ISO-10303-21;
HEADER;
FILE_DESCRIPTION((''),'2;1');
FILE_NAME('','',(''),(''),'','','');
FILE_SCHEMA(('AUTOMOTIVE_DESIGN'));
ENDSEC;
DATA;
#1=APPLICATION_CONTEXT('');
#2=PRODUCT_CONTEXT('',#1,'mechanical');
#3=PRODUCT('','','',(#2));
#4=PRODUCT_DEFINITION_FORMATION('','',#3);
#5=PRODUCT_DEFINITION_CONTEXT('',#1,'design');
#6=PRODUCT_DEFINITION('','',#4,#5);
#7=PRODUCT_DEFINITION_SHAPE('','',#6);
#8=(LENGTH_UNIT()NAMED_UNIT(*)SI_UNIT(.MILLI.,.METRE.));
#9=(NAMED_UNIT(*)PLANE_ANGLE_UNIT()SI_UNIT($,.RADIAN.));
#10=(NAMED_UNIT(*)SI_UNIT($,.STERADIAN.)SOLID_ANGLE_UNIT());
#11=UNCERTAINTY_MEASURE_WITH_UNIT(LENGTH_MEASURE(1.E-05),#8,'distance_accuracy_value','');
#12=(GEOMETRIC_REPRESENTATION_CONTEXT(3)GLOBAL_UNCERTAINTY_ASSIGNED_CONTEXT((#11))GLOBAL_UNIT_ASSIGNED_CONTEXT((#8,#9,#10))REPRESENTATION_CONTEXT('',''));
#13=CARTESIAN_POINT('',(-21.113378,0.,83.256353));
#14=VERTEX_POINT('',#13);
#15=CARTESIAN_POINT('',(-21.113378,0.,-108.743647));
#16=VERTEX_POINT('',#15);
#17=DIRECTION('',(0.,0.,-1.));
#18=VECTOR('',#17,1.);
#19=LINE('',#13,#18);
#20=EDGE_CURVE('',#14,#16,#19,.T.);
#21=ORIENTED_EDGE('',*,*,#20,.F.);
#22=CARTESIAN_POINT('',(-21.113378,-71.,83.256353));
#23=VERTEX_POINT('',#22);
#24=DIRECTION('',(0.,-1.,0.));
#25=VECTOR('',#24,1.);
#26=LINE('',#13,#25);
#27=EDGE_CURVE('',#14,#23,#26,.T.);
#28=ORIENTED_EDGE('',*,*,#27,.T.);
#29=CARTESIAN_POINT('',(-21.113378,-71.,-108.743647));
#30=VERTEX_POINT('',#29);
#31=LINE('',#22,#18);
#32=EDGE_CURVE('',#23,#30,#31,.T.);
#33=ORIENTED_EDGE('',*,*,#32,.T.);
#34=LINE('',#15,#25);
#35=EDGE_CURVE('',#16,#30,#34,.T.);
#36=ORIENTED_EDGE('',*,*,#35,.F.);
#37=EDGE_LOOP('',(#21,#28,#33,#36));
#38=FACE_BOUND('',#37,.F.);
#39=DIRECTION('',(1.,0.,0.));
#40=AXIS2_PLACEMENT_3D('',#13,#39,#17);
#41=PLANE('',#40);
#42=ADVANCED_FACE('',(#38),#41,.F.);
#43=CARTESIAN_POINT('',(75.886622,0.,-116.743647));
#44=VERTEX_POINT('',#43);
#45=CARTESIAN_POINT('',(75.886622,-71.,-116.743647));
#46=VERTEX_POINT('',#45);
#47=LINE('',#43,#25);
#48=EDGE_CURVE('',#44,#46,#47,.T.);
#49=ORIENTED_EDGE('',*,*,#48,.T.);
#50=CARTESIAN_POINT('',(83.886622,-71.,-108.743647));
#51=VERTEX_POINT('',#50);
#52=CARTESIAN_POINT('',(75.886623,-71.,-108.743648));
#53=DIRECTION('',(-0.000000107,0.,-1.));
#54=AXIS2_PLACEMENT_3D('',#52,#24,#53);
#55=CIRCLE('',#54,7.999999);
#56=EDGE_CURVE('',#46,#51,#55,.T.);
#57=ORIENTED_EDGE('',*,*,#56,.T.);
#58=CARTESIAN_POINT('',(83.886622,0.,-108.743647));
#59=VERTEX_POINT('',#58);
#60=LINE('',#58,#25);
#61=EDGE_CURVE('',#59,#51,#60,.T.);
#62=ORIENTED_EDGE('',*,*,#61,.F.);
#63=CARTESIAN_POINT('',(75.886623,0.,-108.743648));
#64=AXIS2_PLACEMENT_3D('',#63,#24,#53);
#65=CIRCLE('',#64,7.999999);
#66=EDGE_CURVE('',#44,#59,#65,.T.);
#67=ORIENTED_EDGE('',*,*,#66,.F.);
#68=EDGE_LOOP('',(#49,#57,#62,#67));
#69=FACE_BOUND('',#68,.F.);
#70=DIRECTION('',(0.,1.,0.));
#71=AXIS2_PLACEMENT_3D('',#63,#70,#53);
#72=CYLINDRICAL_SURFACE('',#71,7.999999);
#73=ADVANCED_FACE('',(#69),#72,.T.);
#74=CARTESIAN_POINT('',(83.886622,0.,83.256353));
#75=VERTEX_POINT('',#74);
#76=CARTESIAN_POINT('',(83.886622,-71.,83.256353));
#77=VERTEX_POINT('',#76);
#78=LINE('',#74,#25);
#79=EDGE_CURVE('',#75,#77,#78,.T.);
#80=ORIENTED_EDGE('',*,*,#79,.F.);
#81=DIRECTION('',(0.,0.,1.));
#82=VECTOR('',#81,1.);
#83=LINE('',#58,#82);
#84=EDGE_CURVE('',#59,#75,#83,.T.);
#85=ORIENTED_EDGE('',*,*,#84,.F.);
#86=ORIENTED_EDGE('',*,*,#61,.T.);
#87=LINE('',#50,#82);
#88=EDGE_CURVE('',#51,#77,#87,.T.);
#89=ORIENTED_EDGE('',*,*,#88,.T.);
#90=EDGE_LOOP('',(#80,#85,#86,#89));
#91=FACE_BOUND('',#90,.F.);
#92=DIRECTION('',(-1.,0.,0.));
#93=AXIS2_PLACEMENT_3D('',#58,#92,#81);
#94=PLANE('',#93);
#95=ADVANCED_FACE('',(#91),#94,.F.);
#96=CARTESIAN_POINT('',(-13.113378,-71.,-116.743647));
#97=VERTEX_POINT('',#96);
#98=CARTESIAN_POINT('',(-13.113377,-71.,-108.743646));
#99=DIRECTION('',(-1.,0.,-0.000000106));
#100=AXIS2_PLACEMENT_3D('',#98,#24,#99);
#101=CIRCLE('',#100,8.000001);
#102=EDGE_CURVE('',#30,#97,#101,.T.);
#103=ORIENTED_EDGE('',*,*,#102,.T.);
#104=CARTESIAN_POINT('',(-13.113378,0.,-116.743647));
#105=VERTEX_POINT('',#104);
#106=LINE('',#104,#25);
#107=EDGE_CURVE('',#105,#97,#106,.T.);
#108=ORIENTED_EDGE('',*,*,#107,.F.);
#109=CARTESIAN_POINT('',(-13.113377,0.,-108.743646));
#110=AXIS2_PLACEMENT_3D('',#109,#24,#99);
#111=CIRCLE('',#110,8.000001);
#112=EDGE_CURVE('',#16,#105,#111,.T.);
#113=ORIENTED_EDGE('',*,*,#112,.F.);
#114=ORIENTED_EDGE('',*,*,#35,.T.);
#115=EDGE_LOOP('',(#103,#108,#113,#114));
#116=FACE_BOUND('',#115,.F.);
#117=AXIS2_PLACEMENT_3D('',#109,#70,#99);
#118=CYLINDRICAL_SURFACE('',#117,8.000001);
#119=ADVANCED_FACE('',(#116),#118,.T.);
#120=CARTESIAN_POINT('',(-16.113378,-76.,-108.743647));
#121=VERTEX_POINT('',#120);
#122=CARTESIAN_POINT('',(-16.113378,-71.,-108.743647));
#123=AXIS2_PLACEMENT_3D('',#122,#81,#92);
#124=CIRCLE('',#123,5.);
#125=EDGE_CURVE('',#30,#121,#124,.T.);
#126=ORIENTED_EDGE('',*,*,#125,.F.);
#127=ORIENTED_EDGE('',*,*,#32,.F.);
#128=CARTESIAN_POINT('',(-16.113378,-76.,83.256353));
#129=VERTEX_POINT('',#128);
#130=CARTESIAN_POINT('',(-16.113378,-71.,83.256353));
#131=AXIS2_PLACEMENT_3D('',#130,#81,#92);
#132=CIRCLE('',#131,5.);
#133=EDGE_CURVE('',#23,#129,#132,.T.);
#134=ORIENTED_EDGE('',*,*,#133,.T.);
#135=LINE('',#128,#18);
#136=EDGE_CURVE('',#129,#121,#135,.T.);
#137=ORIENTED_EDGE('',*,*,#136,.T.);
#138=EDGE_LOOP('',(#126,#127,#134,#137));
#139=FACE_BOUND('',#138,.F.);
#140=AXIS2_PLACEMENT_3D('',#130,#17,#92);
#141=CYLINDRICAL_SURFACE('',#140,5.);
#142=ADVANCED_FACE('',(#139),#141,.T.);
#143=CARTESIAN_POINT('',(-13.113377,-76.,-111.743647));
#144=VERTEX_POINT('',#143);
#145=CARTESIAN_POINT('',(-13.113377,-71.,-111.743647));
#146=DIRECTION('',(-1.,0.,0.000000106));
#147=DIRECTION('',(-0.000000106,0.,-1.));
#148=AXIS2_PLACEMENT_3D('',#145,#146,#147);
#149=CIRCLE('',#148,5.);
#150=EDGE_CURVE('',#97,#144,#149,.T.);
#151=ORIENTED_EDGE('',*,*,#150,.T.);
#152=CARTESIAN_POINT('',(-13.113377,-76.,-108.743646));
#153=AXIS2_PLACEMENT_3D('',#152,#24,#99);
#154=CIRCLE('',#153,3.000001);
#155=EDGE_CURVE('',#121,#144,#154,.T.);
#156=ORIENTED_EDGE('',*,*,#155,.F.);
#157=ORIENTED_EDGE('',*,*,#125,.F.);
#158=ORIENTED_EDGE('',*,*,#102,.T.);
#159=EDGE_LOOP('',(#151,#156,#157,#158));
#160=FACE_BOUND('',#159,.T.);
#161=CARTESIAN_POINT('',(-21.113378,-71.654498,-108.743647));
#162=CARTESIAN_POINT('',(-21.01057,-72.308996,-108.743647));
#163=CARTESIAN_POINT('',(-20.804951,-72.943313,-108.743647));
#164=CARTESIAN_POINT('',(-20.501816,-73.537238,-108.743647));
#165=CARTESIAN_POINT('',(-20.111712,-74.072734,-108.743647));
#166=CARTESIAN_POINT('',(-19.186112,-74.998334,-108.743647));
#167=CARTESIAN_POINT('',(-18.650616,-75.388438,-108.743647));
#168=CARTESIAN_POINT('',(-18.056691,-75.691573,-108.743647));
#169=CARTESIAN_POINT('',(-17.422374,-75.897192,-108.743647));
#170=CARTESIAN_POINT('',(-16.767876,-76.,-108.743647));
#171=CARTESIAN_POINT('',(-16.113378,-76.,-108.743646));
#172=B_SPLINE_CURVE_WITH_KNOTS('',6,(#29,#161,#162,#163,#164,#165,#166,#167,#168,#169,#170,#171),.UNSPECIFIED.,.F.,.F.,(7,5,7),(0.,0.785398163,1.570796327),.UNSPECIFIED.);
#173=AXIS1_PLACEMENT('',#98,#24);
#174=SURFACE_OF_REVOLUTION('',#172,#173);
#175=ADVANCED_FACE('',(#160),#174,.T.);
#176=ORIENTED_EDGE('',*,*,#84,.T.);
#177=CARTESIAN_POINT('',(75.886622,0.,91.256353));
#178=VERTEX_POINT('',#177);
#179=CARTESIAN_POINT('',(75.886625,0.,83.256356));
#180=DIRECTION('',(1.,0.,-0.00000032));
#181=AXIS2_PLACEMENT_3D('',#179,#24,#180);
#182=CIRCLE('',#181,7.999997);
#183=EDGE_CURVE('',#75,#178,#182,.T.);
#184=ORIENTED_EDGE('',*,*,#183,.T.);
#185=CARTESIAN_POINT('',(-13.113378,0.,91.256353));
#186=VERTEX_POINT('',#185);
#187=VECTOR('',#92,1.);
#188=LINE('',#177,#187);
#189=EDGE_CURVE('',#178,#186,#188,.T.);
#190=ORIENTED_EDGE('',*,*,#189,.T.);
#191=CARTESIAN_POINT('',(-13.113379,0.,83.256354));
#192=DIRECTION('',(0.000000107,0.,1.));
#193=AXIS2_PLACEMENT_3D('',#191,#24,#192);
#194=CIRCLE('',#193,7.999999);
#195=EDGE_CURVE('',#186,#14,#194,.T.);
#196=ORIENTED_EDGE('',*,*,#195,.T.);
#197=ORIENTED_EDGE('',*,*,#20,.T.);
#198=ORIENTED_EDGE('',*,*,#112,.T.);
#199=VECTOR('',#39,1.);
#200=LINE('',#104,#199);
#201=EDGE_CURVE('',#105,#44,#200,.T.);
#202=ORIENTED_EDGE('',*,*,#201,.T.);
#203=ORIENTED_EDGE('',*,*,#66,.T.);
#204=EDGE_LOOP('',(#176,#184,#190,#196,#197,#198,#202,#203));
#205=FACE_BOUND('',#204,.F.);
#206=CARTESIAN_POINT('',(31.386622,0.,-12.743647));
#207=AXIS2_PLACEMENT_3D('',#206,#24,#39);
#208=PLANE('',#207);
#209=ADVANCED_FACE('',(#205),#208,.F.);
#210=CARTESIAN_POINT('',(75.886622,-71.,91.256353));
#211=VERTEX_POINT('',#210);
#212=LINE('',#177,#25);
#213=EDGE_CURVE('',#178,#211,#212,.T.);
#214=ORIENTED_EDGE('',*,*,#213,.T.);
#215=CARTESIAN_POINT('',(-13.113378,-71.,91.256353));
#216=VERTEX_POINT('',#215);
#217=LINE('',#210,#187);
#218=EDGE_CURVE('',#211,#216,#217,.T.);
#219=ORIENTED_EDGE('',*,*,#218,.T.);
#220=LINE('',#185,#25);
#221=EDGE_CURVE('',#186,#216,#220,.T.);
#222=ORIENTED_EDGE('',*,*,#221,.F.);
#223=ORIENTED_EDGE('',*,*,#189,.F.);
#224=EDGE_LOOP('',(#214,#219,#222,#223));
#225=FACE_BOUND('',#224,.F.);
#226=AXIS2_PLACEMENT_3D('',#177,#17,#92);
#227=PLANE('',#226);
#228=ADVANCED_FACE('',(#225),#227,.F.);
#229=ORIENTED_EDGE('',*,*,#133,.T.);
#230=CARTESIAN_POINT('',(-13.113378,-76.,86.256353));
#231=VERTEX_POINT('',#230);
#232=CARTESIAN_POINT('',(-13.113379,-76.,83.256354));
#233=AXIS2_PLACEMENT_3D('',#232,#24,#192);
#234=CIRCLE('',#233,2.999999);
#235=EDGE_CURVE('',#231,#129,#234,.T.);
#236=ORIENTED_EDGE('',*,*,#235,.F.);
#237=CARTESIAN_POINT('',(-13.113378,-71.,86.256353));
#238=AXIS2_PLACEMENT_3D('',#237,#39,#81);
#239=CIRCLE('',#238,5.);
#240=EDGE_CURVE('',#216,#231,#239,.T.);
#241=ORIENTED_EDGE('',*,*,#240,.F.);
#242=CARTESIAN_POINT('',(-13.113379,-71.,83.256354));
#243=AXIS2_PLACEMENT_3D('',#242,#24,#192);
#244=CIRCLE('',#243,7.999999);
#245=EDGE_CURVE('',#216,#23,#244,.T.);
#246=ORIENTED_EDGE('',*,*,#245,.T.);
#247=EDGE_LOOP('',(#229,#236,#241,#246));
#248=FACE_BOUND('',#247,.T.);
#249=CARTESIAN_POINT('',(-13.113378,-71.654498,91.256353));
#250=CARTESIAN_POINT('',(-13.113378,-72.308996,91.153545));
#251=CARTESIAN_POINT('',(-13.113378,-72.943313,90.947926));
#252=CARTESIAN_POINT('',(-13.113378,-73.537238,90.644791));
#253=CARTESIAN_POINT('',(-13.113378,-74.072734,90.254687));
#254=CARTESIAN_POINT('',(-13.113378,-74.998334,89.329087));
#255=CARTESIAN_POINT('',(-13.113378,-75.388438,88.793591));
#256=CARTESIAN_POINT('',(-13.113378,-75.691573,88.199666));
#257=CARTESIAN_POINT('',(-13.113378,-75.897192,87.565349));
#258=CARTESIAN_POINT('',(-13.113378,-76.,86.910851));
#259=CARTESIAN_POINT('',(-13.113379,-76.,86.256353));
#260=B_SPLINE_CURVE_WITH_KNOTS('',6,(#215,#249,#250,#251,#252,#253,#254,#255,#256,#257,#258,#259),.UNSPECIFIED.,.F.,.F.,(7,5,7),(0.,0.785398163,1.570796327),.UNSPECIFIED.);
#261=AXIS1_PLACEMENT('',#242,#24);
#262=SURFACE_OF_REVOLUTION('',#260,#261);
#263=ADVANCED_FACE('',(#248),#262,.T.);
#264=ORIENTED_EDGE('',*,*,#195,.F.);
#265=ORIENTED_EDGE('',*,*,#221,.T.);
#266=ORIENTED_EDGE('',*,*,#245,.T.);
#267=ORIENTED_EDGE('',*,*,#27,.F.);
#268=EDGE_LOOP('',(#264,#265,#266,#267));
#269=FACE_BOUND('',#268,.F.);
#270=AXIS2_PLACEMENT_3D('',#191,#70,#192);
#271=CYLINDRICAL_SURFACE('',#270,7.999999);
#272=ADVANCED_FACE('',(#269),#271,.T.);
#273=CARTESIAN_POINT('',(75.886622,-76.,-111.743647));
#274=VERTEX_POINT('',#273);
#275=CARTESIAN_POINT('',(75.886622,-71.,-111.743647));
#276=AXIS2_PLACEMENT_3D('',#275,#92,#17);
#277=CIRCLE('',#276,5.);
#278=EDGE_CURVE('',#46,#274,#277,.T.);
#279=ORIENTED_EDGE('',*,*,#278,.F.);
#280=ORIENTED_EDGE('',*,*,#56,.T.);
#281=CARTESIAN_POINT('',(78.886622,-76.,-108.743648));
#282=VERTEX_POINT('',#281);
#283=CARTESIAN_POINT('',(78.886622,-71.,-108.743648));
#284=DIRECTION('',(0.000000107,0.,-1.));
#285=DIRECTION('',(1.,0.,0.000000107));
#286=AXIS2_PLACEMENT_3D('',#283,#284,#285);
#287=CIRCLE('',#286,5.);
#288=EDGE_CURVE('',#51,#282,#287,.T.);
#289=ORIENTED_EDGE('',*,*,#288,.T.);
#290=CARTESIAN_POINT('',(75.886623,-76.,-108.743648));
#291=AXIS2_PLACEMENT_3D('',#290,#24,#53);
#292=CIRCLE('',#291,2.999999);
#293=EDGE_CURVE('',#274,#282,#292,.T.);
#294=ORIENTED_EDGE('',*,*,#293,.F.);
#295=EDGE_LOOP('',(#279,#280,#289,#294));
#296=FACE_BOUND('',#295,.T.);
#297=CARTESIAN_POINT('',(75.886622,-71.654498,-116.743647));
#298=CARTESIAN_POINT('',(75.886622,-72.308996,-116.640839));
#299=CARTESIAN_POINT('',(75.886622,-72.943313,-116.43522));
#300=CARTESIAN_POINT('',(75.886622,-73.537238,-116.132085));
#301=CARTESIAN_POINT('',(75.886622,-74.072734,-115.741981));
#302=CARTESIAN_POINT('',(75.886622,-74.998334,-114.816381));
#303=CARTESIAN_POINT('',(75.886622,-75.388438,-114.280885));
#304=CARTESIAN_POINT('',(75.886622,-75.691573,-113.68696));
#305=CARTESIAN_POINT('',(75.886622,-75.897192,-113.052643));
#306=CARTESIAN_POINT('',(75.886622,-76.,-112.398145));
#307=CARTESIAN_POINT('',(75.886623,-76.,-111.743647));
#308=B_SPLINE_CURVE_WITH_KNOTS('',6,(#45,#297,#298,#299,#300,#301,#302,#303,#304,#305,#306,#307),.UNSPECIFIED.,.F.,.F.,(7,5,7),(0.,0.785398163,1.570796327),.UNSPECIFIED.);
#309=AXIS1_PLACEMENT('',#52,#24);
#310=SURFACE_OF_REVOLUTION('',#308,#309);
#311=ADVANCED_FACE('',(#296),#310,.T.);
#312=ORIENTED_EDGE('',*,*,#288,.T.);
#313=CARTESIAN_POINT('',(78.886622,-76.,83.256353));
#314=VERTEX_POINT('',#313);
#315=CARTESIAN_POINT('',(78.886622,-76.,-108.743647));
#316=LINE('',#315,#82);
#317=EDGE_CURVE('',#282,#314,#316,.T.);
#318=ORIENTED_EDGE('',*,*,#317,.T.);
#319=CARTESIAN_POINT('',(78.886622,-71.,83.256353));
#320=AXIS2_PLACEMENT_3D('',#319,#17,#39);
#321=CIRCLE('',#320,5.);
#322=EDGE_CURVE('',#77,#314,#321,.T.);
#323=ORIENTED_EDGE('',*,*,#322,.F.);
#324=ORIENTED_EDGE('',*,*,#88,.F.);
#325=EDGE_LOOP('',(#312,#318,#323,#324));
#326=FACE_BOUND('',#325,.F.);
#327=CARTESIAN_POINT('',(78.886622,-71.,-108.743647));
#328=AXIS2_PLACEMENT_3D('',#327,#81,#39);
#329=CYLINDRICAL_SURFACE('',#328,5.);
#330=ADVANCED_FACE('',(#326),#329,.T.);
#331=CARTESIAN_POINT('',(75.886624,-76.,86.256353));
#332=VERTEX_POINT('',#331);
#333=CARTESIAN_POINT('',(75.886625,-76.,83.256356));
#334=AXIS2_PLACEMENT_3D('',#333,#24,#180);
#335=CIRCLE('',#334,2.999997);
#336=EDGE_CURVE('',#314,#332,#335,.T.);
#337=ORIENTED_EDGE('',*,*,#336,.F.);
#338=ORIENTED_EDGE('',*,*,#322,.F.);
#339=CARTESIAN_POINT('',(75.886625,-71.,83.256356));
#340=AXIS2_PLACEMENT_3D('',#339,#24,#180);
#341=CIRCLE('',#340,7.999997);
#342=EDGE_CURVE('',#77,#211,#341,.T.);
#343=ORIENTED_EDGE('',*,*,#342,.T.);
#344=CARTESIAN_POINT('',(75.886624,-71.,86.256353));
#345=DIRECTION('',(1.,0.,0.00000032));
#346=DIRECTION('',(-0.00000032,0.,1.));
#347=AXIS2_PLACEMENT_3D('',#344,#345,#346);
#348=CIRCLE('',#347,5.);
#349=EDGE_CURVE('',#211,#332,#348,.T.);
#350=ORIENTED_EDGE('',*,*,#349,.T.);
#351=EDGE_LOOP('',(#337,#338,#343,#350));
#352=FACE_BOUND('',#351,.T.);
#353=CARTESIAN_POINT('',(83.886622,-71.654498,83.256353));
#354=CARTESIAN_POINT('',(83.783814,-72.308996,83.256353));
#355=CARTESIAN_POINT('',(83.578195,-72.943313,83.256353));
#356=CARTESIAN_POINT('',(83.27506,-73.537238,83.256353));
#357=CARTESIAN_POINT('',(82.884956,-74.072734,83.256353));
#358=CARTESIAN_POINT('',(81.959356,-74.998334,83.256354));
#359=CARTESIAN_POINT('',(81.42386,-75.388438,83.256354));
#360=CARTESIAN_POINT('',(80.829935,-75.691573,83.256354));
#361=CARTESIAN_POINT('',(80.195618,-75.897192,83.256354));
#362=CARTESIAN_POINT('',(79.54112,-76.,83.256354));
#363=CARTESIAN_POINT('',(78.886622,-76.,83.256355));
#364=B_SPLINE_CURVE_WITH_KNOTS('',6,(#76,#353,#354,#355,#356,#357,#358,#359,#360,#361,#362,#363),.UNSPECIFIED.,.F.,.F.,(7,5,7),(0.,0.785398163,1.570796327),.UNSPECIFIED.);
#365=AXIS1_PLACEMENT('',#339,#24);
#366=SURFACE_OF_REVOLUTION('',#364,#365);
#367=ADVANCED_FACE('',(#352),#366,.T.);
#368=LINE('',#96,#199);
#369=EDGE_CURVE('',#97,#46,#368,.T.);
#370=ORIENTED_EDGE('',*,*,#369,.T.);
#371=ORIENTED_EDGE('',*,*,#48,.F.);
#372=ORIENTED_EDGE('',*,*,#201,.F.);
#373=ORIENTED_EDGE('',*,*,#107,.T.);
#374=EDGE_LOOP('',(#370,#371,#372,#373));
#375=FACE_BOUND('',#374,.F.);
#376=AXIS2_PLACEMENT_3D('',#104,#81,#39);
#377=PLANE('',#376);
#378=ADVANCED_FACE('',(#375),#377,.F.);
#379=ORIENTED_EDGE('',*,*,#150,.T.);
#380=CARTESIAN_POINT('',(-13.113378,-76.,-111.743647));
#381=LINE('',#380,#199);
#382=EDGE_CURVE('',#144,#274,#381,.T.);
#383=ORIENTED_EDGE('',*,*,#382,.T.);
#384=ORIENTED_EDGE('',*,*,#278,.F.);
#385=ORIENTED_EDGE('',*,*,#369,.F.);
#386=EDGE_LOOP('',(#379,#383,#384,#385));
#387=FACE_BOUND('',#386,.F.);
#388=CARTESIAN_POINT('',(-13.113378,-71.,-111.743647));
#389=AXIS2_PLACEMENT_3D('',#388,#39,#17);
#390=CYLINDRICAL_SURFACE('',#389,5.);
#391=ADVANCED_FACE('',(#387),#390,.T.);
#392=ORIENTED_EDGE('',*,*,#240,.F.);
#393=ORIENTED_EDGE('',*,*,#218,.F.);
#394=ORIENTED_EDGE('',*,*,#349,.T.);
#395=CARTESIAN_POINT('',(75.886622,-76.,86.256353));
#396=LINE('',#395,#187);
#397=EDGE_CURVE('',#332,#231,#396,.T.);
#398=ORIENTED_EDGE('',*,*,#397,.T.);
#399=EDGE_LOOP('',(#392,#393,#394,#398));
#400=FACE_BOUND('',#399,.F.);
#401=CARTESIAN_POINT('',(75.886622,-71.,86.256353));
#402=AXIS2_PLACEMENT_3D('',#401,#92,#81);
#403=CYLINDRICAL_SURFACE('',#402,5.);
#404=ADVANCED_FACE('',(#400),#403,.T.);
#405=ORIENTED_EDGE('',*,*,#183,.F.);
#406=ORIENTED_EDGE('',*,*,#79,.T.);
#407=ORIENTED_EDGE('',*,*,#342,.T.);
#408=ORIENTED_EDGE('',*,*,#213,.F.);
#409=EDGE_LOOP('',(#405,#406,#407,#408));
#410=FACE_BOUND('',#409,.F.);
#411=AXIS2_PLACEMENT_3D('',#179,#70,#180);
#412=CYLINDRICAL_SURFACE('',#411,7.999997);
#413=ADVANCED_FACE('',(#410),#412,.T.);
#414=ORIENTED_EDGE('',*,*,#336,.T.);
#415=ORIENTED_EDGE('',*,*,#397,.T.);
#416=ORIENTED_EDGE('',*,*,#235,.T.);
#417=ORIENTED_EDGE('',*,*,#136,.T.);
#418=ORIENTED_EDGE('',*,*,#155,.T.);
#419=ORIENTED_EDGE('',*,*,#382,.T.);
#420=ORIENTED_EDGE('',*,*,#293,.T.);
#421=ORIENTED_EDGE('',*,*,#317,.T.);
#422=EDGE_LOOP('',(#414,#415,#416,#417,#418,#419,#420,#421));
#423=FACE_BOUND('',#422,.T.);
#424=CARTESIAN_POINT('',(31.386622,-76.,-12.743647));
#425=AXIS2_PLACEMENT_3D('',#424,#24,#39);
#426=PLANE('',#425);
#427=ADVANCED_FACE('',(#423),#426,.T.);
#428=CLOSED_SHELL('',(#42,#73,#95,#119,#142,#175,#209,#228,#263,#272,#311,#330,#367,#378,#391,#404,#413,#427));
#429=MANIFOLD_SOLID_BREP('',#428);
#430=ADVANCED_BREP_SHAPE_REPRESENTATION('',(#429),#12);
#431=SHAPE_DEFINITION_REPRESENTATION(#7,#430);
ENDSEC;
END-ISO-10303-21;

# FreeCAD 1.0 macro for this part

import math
import FreeCAD as App
import Part
import Sketcher

V = App.Vector


def edges_at(feature, points):
    """Names of the edges that pass closest to the given points."""
    edges = feature.Shape.Edges
    near = lambda p: min(range(len(edges)), key=lambda i: edges[i].distToShape(Part.Vertex(*p))[0])
    return sorted({f"Edge{near(p) + 1}" for p in points})

doc = App.newDocument("Part")
body = doc.addObject("PartDesign::Body", "Body")

# Sketch on XZ plane
sketch1 = body.newObject("Sketcher::SketchObject", "Sketch")
sketch1.AttachmentSupport = (doc.getObject("XZ_Plane"), [""])
sketch1.MapMode = "FlatFace"
sketch1.addGeometry([
    Part.LineSegment(V(75.886622, 91.256353, 0), V(-13.113378, 91.256353, 0)),  # 0
    Part.ArcOfCircle(Part.Circle(V(-13.113379, 83.256354, 0), V(0, 0, 1), 7.999999), math.radians(89.999994), math.radians(180.000006)),  # 1
    Part.LineSegment(V(-21.113378, 83.256353, 0), V(-21.113378, -108.743647, 0)),  # 2
    Part.ArcOfCircle(Part.Circle(V(-13.113377, -108.743646, 0), V(0, 0, 1), 8.000001), math.radians(-179.999994), math.radians(-90.000006)),  # 3
    Part.LineSegment(V(-13.113378, -116.743647, 0), V(75.886622, -116.743647, 0)),  # 4
    Part.ArcOfCircle(Part.Circle(V(75.886623, -108.743648, 0), V(0, 0, 1), 7.999999), math.radians(-90.000006), math.radians(0.000006)),  # 5
    Part.LineSegment(V(83.886622, -108.743647, 0), V(83.886622, 83.256353, 0)),  # 6
    Part.ArcOfCircle(Part.Circle(V(75.886625, 83.256356, 0), V(0, 0, 1), 7.999997), math.radians(-0.000018), math.radians(90.000018)),  # 7
], False)
sketch1.addConstraint([
    Sketcher.Constraint("Tangent", 0, 2, 1, 1),
    Sketcher.Constraint("Tangent", 1, 2, 2, 1),
    Sketcher.Constraint("Tangent", 2, 2, 3, 1),
    Sketcher.Constraint("Tangent", 3, 2, 4, 1),
    Sketcher.Constraint("Tangent", 4, 2, 5, 1),
    Sketcher.Constraint("Tangent", 5, 2, 6, 1),
    Sketcher.Constraint("Tangent", 6, 2, 7, 1),
    Sketcher.Constraint("Tangent", 7, 2, 0, 1),
    Sketcher.Constraint("Horizontal", 0),
    Sketcher.Constraint("Vertical", 2),
    Sketcher.Constraint("Horizontal", 4),
    Sketcher.Constraint("Vertical", 6),
    Sketcher.Constraint("Equal", 1, 3),
    Sketcher.Constraint("Equal", 3, 5),
    Sketcher.Constraint("Equal", 5, 7),
    Sketcher.Constraint("Radius", 1, 7.999999),
    Sketcher.Constraint("DistanceX", 0, 2, 0, 1, 89.0),
    Sketcher.Constraint("DistanceY", 2, 2, 2, 1, 192.0),
    Sketcher.Constraint("DistanceX", 1, 3, -1, 1, 13.113379),
    Sketcher.Constraint("DistanceY", -1, 1, 1, 3, 83.256354),
])
pad1 = body.newObject("PartDesign::Pad", "Pad")
pad1.Profile = sketch1
pad1.Length = 76
doc.recompute()

fillet = body.newObject("PartDesign::Fillet", "Fillet")
fillet.Base = (pad1, edges_at(pad1, [(-21.113, -76, -12.744)]))
fillet.Radius = 5

doc.recompute()
